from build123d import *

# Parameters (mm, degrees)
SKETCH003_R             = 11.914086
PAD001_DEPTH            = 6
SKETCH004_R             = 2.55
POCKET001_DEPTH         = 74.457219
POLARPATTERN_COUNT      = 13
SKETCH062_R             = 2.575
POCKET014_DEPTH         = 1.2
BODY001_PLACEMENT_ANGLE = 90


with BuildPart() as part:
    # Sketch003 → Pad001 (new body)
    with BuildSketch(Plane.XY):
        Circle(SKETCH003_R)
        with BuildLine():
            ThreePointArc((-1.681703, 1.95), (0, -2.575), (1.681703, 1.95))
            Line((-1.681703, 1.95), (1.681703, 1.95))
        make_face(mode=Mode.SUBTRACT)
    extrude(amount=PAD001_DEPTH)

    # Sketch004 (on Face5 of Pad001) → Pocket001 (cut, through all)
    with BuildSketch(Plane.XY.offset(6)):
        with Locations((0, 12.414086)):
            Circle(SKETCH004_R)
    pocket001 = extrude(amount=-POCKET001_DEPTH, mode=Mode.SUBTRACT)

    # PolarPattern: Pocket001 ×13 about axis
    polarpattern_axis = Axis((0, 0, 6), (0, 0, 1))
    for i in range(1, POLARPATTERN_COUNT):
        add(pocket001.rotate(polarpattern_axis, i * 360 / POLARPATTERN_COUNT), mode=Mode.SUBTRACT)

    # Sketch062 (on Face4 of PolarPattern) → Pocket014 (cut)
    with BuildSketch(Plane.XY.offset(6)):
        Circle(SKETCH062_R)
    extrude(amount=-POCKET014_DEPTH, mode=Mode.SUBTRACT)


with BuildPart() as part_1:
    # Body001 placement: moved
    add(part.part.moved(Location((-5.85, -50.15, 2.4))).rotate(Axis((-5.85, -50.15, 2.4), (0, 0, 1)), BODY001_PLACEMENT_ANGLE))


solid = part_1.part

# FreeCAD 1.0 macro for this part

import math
import FreeCAD as App
import Part
import Sketcher

doc = App.newDocument("Part")
body = doc.addObject("PartDesign::Body", "Body")

sketch1 = body.newObject("Sketcher::SketchObject", "Sketch")
sketch1.AttachmentSupport = (doc.getObject("XY_Plane"), [""])
sketch1.MapMode = "FlatFace"
sketch1.addGeometry([
    Part.Circle(App.Vector(0, 0, 0), App.Vector(0, 0, 1), 11.9),
    Part.ArcOfCircle(Part.Circle(App.Vector(0, 0, 0), App.Vector(0, 0, 1), 2.6), math.radians(131), math.radians(409)),
    Part.LineSegment(App.Vector(-1.7, 1.9, 0), App.Vector(1.7, 1.9, 0)),
], False)
sketch1.addConstraint([
    Sketcher.Constraint("Coincident", 1, 1, 2, 1),
    Sketcher.Constraint("Coincident", 2, 2, 1, 2),
    Sketcher.Constraint("Horizontal", 2),
    Sketcher.Constraint("Coincident", 0, 3, -1, 1),
    Sketcher.Constraint("Coincident", 1, 3, -1, 1),
    Sketcher.Constraint("Radius", 1, 2.575),
    Sketcher.Constraint("Diameter", 0, 23.828172),
    Sketcher.Constraint("DistanceY", -1, 1, 1, 1, 1.95),
])
pad1 = body.newObject("PartDesign::Pad", "Pad")
pad1.Profile = sketch1
pad1.Length = 6

sketch2 = body.newObject("Sketcher::SketchObject", "Sketch001")
sketch2.AttachmentSupport = (doc.getObject("XY_Plane"), [""])
sketch2.MapMode = "FlatFace"
sketch2.AttachmentOffset = App.Placement(App.Vector(0, 0, 6), App.Rotation())
sketch2.addGeometry(Part.Circle(App.Vector(0, 12.4, 0), App.Vector(0, 0, 1), 2.5), False)
sketch2.addConstraint([
    Sketcher.Constraint("PointOnObject", 0, 3, -2),
    Sketcher.Constraint("Diameter", 0, 5.1),
    Sketcher.Constraint("DistanceY", -1, 1, 0, 3, 12.414086),
])
pocket1 = body.newObject("PartDesign::Pocket", "Pocket")
pocket1.Profile = sketch2
pocket1.Type = "ThroughAll"
doc.recompute()

polarpattern = body.newObject("PartDesign::PolarPattern", "PolarPattern")
polarpattern.Originals = [pocket1]
polarpattern.Axis = (doc.getObject("Z_Axis"), [""])
polarpattern.Angle = 360
polarpattern.Occurrences = 13
body.Tip = polarpattern

sketch3 = body.newObject("Sketcher::SketchObject", "Sketch002")
sketch3.AttachmentSupport = (doc.getObject("XY_Plane"), [""])
sketch3.MapMode = "FlatFace"
sketch3.AttachmentOffset = App.Placement(App.Vector(0, 0, 6), App.Rotation())
sketch3.addGeometry(Part.Circle(App.Vector(0, 0, 0), App.Vector(0, 0, 1), 2.6), False)
sketch3.addConstraint([
    Sketcher.Constraint("Coincident", 0, 3, -1, 1),
    Sketcher.Constraint("Diameter", 0, 5.15),
])
pocket2 = body.newObject("PartDesign::Pocket", "Pocket001")
pocket2.Profile = sketch3
pocket2.Length = 1.2
body2 = doc.addObject("PartDesign::Body", "Body001")
doc.recompute()

body.Placement = App.Placement(App.Vector(-5.85, -50.15, 2.4), App.Rotation(App.Vector(0, 0, 1), 90))
boolean = body2.newObject("PartDesign::Boolean", "Boolean")
boolean.Type = "Fuse"
boolean.addObjects([body])

doc.recompute()
